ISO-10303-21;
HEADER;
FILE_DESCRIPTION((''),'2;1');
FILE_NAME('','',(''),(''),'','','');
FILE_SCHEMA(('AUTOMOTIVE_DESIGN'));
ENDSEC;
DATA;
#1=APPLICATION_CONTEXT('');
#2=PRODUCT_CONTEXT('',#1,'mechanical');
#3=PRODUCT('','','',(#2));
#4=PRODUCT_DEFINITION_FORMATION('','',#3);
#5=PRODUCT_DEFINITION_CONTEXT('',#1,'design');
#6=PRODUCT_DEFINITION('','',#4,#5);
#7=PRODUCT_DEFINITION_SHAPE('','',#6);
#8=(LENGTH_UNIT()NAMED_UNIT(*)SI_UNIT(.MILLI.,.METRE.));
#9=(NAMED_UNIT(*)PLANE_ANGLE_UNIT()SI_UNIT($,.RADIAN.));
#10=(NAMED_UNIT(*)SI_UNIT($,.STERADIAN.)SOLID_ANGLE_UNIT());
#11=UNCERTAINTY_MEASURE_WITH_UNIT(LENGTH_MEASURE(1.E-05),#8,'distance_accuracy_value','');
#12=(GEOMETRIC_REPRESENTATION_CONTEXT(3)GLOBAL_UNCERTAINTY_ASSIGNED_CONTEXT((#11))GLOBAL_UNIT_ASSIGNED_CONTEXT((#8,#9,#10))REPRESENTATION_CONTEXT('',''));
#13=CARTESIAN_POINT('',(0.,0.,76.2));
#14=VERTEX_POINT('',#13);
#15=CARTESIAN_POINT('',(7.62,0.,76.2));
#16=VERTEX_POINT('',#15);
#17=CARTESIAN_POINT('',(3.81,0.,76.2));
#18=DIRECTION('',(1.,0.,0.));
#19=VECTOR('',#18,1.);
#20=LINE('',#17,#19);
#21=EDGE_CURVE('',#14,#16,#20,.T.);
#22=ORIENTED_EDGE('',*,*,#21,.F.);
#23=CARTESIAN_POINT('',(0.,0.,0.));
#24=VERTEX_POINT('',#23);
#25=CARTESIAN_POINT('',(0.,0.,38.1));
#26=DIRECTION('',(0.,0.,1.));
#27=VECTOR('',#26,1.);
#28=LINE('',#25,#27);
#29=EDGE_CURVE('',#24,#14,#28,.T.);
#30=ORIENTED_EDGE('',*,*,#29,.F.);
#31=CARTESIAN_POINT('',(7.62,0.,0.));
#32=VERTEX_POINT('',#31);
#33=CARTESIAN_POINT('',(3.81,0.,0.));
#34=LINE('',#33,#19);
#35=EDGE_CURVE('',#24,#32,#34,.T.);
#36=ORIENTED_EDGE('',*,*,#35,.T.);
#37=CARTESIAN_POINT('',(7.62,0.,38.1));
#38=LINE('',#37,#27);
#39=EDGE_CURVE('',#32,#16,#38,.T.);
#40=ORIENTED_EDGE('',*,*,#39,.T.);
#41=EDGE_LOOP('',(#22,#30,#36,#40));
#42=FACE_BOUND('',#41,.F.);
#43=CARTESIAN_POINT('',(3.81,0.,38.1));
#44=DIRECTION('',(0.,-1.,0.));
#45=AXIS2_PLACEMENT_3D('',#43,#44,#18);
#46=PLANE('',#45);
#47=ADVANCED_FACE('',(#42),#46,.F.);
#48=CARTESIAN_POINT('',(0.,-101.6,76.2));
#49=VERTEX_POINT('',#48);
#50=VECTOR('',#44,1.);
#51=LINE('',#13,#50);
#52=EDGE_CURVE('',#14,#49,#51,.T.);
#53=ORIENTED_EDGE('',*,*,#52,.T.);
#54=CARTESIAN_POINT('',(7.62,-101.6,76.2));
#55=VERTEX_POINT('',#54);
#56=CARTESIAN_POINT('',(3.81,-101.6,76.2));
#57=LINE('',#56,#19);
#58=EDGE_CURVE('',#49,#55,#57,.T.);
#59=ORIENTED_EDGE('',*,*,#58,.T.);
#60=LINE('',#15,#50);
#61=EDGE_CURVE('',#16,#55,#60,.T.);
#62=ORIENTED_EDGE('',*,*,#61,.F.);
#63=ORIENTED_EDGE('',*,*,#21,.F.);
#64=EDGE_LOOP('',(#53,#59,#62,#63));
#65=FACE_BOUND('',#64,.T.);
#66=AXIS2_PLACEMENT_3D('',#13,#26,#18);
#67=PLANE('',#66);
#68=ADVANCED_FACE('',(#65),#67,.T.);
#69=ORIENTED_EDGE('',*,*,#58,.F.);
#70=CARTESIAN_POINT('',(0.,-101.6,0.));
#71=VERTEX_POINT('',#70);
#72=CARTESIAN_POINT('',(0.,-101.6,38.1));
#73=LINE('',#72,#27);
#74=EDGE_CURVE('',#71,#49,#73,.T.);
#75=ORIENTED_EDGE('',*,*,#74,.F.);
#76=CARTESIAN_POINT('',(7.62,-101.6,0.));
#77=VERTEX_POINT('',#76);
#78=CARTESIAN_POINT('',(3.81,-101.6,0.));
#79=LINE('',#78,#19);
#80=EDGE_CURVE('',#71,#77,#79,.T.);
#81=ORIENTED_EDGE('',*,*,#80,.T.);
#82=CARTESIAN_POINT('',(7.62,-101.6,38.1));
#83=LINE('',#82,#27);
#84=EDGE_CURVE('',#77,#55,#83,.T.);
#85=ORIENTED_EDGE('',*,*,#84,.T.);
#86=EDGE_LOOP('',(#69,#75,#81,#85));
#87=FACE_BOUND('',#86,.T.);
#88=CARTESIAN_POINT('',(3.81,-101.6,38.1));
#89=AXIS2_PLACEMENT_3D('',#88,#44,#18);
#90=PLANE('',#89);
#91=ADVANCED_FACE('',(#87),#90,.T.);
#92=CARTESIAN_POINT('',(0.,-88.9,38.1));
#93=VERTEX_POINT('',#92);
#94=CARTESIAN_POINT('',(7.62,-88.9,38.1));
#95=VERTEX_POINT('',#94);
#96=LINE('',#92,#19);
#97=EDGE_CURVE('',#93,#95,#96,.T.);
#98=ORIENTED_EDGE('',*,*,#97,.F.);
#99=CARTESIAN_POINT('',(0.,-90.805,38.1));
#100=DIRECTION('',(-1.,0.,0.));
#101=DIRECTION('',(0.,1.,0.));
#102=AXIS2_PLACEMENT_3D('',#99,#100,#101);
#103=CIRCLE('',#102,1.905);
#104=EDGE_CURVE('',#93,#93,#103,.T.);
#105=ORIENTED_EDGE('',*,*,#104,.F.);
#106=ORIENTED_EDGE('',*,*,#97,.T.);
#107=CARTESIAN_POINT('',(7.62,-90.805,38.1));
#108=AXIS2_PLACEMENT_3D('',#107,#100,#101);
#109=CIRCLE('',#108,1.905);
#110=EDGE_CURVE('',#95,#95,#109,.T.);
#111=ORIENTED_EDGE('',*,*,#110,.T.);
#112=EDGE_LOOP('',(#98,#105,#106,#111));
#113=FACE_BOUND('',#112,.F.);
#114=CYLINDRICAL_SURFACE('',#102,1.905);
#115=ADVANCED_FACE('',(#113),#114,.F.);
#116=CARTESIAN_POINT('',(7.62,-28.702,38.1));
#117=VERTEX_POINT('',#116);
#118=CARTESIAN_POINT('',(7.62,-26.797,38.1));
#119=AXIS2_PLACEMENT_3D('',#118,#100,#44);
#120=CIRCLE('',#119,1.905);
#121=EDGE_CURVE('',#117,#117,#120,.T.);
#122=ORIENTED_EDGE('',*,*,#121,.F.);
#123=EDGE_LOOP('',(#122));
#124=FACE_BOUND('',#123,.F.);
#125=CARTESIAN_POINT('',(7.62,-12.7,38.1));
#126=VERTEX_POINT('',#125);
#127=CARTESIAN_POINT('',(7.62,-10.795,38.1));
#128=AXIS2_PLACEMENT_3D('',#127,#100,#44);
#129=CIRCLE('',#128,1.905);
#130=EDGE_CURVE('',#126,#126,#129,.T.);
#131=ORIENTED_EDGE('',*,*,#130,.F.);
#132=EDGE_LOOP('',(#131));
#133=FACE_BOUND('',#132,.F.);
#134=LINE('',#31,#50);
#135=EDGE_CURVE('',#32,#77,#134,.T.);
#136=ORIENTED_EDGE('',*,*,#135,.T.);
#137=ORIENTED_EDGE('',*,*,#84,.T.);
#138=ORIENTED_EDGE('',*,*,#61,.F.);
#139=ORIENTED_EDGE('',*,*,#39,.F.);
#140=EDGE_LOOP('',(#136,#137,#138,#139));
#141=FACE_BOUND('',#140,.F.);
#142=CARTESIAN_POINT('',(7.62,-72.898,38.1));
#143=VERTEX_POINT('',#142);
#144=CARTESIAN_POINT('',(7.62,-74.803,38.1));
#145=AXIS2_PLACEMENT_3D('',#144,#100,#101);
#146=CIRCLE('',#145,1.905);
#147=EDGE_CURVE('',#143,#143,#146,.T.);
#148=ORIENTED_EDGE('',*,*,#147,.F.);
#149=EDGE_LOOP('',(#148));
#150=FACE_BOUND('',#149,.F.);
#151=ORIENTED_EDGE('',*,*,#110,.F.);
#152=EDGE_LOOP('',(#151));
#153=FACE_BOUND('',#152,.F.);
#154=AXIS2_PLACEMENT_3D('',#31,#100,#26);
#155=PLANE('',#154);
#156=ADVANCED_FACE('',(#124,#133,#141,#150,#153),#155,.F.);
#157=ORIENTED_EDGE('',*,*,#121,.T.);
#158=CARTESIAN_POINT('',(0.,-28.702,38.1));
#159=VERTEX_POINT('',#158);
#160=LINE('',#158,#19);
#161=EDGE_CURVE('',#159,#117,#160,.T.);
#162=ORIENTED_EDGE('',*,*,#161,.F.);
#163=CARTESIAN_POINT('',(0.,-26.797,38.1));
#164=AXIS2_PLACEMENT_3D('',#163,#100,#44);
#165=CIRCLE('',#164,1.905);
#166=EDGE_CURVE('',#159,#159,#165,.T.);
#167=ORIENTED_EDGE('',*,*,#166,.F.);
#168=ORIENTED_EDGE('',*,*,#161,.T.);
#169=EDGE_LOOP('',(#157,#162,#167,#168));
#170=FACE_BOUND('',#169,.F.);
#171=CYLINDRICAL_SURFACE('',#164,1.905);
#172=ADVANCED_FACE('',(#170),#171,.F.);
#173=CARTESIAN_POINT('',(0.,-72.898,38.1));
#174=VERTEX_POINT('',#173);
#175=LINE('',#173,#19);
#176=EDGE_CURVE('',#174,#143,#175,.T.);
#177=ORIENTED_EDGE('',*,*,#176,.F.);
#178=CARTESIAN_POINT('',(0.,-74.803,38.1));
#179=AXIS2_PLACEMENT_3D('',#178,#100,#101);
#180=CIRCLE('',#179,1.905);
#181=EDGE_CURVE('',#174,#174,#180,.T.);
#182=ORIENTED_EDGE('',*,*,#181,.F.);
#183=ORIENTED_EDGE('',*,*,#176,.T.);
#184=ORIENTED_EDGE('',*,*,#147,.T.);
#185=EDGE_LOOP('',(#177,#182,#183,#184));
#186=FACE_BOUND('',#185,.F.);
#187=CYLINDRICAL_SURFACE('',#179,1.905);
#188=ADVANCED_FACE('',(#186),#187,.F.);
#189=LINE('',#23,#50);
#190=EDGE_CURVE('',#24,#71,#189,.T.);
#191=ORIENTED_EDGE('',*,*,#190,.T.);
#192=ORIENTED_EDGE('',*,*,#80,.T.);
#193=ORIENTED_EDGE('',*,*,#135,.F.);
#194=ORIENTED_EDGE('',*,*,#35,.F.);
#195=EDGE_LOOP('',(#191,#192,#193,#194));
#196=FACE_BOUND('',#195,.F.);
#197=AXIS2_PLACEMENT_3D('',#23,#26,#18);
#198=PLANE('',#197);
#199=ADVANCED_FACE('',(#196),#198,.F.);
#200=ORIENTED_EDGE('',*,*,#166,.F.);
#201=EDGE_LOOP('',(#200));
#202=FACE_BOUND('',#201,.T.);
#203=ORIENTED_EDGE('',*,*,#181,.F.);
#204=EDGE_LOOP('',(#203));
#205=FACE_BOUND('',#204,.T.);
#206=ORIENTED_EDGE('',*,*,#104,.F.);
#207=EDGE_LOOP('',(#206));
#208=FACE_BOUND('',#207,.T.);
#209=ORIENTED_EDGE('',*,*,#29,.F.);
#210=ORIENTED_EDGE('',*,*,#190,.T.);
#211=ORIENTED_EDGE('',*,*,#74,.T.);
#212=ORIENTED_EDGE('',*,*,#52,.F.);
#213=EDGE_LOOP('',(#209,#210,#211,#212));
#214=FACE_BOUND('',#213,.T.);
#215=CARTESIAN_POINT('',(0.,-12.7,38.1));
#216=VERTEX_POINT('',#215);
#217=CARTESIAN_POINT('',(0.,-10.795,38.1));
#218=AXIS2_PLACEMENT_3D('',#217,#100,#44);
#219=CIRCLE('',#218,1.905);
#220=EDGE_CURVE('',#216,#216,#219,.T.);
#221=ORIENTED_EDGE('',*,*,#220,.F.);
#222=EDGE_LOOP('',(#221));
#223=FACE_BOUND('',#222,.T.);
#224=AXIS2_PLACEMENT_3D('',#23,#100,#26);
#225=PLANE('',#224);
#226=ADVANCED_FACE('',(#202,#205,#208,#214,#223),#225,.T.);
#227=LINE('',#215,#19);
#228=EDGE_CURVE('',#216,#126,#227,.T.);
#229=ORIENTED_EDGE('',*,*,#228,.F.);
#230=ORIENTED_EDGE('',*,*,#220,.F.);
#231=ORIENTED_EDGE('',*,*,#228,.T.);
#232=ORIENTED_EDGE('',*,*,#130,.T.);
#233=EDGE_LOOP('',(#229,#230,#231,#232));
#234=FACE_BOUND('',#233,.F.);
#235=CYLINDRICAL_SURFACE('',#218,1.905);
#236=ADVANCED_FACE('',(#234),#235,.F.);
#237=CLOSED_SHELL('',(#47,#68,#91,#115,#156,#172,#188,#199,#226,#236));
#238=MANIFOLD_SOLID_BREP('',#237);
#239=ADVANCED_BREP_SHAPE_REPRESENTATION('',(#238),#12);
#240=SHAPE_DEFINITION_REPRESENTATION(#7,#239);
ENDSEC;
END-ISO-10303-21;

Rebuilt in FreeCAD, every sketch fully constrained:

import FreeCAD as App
import Part
import Sketcher
from FreeCAD import Vector
Q = App.Units.Quantity

doc = App.newDocument("Part")
body = doc.addObject("PartDesign::Body", "Body")

sketch1 = doc.addObject("Sketcher::SketchObject", "Sketch")
body.addObject(sketch1)
sketch1.AttachmentSupport = (doc.XZ_Plane, [""])
sketch1.MapMode = "FlatFace"
sketch1.addGeometry(Part.LineSegment(Vector(0, 76.2, 0), Vector(0, 0, 0)), False)
sketch1.addGeometry(Part.LineSegment(Vector(0, 0, 0), Vector(7.62, 0, 0)), False)
sketch1.addGeometry(Part.LineSegment(Vector(7.62, 0, 0), Vector(7.62, 76.2, 0)), False)
sketch1.addGeometry(Part.LineSegment(Vector(7.62, 76.2, 0), Vector(0, 76.2, 0)), False)
sketch1.addConstraint(Sketcher.Constraint("Coincident", 0, 2, 1, 1))
sketch1.addConstraint(Sketcher.Constraint("Coincident", 1, 2, 2, 1))
sketch1.addConstraint(Sketcher.Constraint("Coincident", 2, 2, 3, 1))
sketch1.addConstraint(Sketcher.Constraint("Coincident", 3, 2, 0, 1))
sketch1.addConstraint(Sketcher.Constraint("Vertical", 0))
sketch1.addConstraint(Sketcher.Constraint("Horizontal", 1))
sketch1.addConstraint(Sketcher.Constraint("Vertical", 2))
sketch1.addConstraint(Sketcher.Constraint("Horizontal", 3))
sketch1.addConstraint(Sketcher.Constraint("Coincident", 0, 2, -1, 1))
sketch1.addConstraint(Sketcher.Constraint("DistanceY", 0, 2, 0, 1, Q("3 in")))
sketch1.addConstraint(Sketcher.Constraint("DistanceX", 1, 1, 1, 2, Q("0.3 in")))
pad1 = doc.addObject("PartDesign::Pad", "Pad")
body.addObject(pad1)
pad1.Profile = sketch1
pad1.Length = Q("4 in")

sketch2 = doc.addObject("Sketcher::SketchObject", "Sketch001")
body.addObject(sketch2)
sketch2.AttachmentSupport = (doc.YZ_Plane, [""])
sketch2.MapMode = "FlatFace"
sketch2.addGeometry(Part.Circle(Vector(-90.805, 38.1, 0), Vector(0, 0, 1), 1.905), False)
sketch2.addGeometry(Part.Circle(Vector(-74.803, 38.1, 0), Vector(0, 0, 1), 1.905), False)
sketch2.addGeometry(Part.Circle(Vector(-26.797, 38.1, 0), Vector(0, 0, 1), 1.905), False)
sketch2.addGeometry(Part.Circle(Vector(-10.795, 38.1, 0), Vector(0, 0, 1), 1.905), False)
sketch2.addConstraint(Sketcher.Constraint("Equal", 0, 1))
sketch2.addConstraint(Sketcher.Constraint("Equal", 1, 2))
sketch2.addConstraint(Sketcher.Constraint("Equal", 2, 3))
sketch2.addConstraint(Sketcher.Constraint("Horizontal", 0, 3, 1, 3))
sketch2.addConstraint(Sketcher.Constraint("Horizontal", 1, 3, 2, 3))
sketch2.addConstraint(Sketcher.Constraint("Horizontal", 2, 3, 3, 3))
sketch2.addConstraint(Sketcher.Constraint("Diameter", 0, Q("0.15 in")))
sketch2.addConstraint(Sketcher.Constraint("DistanceY", -1, 1, 0, 3, Q("1.5 in")))
sketch2.addConstraint(Sketcher.Constraint("DistanceX", 0, 3, 1, 3, Q("0.63 in")))
sketch2.addConstraint(Sketcher.Constraint("DistanceX", 1, 3, 2, 3, Q("1.89 in")))
sketch2.addConstraint(Sketcher.Constraint("DistanceX", 2, 3, 3, 3, Q("0.63 in")))
sketch2.addConstraint(Sketcher.Constraint("DistanceX", 0, 3, -1, 1, Q("3.575 in")))
pocket1 = doc.addObject("PartDesign::Pocket", "Pocket")
body.addObject(pocket1)
pocket1.Profile = sketch2
pocket1.Length = Q("1 in")
pocket1.Reversed = True

doc.recompute()
